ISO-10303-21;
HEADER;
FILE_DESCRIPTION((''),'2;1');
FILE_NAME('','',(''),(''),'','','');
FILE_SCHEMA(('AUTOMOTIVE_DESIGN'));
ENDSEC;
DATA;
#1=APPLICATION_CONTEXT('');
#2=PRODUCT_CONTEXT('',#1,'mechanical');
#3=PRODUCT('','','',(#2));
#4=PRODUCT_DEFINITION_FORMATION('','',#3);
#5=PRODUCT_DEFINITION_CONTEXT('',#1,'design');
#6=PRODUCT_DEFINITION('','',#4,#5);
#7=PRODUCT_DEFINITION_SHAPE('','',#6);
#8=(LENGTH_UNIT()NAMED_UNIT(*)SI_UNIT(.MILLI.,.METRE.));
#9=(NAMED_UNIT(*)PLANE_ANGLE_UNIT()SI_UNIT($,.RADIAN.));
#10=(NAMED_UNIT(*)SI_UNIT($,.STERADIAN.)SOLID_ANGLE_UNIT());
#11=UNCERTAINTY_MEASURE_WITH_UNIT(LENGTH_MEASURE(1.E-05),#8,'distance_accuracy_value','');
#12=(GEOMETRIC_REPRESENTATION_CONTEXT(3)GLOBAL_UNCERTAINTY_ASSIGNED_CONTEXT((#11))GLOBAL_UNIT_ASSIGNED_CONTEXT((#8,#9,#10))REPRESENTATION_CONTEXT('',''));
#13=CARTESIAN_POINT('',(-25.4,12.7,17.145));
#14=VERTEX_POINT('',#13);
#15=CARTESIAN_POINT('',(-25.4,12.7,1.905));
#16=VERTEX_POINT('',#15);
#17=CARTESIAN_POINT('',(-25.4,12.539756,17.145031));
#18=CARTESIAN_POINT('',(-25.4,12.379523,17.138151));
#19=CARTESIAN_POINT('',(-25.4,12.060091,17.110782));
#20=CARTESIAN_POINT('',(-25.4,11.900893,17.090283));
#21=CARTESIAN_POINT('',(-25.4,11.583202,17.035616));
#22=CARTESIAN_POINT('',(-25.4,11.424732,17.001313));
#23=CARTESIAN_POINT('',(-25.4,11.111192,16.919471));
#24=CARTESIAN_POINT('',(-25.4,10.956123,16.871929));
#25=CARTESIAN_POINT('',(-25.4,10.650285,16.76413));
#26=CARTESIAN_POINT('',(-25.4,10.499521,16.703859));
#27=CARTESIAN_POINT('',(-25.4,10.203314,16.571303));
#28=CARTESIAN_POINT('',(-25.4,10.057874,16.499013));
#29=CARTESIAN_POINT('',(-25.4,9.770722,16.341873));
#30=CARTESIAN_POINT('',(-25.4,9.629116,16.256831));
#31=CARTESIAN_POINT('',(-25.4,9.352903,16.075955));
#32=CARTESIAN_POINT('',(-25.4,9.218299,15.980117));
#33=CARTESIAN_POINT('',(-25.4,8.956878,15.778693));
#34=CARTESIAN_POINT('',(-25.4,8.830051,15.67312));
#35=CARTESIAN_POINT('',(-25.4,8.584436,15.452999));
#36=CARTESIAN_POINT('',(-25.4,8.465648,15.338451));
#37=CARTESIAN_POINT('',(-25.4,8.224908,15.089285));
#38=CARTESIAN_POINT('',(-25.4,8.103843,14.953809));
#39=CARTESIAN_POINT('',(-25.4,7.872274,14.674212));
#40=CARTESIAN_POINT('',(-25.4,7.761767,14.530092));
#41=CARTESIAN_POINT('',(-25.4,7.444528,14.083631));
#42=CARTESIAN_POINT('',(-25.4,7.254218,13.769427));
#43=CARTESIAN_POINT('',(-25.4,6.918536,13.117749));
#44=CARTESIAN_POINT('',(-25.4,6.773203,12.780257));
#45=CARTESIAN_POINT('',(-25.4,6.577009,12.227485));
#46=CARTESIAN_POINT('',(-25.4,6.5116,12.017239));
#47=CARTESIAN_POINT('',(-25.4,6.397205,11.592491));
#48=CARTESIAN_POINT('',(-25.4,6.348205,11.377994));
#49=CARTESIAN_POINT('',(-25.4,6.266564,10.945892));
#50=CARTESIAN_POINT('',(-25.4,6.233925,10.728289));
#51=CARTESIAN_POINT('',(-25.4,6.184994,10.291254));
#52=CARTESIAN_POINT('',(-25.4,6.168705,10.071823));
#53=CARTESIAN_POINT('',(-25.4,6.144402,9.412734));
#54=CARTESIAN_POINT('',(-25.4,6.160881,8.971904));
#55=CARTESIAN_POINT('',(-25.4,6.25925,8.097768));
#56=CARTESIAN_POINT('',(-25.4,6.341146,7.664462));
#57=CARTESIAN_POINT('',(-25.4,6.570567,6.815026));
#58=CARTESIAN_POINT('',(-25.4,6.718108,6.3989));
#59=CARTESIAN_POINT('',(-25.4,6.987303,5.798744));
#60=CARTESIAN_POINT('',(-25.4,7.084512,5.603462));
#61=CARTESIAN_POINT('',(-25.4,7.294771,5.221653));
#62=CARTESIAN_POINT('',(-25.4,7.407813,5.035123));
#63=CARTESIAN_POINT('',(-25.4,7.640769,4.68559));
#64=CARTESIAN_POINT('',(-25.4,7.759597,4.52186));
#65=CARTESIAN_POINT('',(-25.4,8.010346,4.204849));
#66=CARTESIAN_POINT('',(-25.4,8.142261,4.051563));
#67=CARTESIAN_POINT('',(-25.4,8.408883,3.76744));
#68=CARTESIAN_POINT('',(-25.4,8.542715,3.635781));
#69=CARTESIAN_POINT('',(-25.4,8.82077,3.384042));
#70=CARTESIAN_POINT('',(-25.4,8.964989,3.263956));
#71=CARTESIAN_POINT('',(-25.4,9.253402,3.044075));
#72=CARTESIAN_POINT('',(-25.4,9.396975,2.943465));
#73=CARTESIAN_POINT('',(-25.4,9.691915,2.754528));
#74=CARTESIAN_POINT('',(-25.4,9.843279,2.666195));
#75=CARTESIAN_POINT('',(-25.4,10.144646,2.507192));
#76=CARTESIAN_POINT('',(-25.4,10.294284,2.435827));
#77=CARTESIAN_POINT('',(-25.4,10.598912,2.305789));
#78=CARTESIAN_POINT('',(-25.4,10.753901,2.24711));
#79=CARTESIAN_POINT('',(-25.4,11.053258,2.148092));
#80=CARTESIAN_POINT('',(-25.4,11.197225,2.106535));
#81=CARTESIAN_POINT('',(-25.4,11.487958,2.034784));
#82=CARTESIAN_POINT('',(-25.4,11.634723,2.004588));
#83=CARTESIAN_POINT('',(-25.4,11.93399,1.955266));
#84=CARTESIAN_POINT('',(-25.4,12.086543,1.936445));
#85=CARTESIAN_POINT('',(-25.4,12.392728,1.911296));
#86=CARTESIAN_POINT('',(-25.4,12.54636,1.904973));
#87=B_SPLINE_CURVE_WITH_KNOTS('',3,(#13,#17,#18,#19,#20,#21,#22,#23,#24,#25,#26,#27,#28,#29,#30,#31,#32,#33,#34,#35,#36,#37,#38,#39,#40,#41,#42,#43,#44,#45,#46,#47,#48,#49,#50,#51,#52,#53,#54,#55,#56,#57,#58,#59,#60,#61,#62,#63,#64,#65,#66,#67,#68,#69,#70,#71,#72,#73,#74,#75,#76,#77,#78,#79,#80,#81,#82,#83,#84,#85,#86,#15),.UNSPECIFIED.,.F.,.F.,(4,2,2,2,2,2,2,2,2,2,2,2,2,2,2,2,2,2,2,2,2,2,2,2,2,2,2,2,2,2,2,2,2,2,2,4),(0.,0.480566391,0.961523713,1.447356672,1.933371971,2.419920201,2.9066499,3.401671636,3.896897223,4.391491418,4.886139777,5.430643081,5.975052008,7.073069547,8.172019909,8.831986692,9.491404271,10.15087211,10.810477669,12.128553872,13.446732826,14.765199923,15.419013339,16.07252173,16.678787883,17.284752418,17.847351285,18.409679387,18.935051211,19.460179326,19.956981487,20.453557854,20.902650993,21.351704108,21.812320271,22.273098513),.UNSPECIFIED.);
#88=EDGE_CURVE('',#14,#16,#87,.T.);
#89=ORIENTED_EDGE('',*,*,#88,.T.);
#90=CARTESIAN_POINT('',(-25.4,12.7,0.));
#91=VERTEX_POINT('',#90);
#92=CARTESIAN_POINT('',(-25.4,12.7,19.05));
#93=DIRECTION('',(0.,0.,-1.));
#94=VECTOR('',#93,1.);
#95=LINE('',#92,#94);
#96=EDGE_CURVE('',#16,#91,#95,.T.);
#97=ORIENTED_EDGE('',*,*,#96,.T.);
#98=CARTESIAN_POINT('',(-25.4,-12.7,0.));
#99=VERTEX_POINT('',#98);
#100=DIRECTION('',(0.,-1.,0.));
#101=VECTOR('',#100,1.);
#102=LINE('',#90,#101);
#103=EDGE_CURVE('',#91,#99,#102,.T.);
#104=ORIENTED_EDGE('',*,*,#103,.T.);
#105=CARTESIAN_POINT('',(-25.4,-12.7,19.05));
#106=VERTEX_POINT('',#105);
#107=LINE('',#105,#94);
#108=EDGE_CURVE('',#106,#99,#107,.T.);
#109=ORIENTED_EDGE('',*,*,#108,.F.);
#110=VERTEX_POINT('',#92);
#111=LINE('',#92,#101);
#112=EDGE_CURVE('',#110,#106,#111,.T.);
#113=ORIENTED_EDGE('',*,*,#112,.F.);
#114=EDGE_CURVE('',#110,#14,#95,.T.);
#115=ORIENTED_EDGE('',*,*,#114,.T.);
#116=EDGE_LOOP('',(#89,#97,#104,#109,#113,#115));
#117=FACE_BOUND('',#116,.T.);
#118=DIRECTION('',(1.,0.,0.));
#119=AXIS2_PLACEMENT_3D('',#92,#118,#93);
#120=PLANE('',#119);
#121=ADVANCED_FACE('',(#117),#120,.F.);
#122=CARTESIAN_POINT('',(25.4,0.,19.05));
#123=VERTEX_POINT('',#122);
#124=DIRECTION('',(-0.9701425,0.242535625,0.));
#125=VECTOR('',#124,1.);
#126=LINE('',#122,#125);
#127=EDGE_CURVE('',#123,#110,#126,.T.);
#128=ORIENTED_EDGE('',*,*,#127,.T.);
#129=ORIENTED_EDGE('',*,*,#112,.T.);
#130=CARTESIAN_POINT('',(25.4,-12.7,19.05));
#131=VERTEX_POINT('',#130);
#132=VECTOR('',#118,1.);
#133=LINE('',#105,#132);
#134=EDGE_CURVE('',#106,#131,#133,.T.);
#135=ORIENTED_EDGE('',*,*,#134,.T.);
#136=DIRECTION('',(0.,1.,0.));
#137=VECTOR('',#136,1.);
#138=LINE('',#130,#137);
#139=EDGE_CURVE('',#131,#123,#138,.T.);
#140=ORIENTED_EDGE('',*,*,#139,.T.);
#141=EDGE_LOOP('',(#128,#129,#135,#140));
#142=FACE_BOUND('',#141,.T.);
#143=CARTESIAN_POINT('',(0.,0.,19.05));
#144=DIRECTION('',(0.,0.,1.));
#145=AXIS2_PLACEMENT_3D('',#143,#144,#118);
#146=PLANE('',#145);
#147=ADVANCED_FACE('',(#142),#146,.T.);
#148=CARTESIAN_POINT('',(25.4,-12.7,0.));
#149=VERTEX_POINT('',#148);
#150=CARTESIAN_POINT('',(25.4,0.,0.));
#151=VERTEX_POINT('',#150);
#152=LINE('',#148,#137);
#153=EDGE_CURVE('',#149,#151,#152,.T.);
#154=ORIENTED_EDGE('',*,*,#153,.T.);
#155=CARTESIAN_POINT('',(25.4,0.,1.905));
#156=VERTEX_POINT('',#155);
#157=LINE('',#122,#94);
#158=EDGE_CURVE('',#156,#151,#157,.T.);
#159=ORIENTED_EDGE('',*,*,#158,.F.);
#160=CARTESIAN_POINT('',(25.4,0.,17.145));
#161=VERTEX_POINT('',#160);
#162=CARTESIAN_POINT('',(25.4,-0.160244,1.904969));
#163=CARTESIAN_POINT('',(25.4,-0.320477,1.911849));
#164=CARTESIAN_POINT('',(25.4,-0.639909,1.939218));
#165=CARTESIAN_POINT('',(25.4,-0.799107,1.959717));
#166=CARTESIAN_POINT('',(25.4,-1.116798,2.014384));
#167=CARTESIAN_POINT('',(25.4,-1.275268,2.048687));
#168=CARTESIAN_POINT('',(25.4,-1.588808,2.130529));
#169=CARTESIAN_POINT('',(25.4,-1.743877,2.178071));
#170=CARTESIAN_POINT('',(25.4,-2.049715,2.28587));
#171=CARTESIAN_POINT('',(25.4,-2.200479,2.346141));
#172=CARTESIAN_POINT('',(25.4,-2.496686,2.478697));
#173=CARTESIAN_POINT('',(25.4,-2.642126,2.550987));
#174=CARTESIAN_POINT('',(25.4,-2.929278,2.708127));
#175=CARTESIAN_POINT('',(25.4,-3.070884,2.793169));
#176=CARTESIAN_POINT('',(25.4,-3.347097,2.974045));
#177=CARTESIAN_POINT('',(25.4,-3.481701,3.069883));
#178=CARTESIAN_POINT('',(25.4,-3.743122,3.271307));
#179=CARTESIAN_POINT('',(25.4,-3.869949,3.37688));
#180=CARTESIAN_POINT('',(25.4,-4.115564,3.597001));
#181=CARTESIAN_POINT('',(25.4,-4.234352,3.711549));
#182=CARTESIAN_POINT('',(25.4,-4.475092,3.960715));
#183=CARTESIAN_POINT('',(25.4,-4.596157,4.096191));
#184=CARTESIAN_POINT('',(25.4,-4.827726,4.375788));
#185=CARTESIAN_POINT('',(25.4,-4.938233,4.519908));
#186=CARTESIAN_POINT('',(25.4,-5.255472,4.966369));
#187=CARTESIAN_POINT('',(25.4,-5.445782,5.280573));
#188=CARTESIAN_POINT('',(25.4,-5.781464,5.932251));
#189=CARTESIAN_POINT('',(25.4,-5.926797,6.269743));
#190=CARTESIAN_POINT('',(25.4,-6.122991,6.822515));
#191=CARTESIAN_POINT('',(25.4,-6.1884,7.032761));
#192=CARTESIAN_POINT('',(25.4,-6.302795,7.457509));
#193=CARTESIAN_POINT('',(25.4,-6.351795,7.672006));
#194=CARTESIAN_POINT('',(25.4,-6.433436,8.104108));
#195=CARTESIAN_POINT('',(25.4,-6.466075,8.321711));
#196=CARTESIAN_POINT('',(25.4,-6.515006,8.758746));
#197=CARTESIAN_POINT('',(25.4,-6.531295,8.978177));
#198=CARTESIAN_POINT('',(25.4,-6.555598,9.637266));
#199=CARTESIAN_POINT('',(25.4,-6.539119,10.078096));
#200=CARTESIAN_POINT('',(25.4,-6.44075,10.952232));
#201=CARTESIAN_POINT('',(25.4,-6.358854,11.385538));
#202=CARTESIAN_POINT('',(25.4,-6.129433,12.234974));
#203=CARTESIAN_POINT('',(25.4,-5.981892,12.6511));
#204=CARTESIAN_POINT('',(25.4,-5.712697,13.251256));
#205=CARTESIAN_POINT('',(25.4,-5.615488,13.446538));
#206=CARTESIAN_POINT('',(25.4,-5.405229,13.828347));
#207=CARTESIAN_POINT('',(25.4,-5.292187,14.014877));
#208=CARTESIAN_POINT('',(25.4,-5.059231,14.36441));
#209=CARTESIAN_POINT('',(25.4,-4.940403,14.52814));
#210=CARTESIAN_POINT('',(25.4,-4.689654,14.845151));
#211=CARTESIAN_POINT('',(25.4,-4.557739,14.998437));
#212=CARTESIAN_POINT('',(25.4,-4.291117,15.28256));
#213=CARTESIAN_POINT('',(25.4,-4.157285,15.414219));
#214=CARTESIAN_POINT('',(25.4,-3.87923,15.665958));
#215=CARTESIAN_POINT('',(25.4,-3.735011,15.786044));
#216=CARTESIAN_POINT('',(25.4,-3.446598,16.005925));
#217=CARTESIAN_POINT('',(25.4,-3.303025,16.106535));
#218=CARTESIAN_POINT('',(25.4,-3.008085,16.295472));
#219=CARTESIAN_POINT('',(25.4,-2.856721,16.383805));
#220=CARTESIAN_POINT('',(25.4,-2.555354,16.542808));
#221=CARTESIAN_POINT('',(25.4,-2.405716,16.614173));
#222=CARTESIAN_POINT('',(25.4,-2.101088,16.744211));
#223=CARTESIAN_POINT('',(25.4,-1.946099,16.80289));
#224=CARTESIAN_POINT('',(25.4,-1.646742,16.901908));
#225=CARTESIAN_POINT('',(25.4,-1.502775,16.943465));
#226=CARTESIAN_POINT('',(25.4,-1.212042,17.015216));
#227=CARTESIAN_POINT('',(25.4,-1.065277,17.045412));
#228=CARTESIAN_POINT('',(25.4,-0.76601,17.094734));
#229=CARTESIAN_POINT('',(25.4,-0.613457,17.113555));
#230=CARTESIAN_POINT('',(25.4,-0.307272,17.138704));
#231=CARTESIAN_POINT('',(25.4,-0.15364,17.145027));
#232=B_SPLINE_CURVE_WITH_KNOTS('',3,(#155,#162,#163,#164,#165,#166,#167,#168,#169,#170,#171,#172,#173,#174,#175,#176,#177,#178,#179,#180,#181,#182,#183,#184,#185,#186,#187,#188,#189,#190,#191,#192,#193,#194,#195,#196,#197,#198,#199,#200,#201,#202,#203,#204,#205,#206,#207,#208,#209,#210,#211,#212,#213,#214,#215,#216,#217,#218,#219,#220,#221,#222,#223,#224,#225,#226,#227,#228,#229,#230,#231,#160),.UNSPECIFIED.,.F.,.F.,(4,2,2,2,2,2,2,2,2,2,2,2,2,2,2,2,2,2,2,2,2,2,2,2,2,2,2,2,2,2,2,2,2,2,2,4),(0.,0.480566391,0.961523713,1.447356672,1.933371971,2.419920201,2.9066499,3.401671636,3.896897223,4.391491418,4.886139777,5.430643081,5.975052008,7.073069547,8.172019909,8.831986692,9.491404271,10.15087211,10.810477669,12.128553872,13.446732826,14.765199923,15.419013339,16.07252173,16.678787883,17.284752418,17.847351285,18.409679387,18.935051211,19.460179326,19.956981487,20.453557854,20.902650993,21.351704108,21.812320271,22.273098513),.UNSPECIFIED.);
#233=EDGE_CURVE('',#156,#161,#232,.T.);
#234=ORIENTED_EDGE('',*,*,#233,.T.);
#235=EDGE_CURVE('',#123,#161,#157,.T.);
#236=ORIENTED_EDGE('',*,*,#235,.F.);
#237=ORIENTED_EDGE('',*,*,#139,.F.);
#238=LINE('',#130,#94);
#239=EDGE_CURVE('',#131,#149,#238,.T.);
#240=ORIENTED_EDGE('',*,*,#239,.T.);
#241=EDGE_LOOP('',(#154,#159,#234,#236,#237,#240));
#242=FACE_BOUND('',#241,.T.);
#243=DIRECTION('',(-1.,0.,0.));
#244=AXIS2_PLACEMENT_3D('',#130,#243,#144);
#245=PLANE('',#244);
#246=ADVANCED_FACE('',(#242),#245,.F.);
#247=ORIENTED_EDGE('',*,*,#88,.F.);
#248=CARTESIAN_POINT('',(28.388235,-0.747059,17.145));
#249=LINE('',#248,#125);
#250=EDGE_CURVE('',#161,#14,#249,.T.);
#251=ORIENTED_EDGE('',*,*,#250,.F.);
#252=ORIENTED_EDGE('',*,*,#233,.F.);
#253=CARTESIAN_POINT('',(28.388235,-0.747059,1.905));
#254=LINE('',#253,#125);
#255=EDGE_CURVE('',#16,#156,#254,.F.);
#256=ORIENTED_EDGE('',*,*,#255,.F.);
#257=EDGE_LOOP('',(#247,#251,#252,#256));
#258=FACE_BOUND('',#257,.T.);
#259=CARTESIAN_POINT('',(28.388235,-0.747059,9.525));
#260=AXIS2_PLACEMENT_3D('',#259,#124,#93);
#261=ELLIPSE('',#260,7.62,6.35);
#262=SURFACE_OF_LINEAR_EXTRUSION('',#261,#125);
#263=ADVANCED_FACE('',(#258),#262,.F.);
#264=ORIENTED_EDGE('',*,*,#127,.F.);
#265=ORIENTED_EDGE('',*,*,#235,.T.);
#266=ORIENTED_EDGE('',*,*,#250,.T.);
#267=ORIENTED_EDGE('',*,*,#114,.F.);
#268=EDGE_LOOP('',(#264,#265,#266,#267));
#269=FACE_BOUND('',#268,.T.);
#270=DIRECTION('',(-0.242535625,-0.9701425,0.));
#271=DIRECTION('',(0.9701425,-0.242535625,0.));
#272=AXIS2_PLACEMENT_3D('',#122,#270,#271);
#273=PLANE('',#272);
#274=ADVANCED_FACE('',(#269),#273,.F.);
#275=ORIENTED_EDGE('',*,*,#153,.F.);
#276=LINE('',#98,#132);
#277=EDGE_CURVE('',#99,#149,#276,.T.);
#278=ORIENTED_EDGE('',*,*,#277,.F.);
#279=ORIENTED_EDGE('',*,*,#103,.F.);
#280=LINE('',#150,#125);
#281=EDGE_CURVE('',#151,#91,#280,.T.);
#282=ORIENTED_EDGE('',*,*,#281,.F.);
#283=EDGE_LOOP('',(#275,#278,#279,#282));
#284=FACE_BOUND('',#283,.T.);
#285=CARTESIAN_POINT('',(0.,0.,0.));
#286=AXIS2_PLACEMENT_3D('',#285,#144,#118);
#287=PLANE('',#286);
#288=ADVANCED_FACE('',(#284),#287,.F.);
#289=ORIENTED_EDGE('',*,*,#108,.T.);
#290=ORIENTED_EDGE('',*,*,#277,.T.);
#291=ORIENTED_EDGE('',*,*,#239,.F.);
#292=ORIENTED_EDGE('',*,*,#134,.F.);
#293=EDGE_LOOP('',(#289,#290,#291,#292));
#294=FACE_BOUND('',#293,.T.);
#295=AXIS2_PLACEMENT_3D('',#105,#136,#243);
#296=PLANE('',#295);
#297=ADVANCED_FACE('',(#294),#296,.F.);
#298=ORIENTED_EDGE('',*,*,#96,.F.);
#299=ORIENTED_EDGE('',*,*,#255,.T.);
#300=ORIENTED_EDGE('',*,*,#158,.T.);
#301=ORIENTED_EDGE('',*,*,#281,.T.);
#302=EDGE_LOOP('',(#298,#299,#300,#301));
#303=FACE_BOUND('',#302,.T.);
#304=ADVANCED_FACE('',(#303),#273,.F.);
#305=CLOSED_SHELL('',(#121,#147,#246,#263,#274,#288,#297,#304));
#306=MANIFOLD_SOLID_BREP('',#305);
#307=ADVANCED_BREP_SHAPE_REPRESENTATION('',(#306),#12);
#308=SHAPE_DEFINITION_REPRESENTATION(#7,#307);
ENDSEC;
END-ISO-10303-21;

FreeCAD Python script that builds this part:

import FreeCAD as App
import Part
import Sketcher

V = App.Vector
Q = App.Units.Quantity

doc = App.newDocument("Part")
body = doc.addObject("PartDesign::Body", "Body")

# Sketch on XY plane
sketch1 = body.newObject("Sketcher::SketchObject", "Sketch")
sketch1.AttachmentSupport = (doc.getObject("XY_Plane"), [""])
sketch1.MapMode = "FlatFace"
sketch1.addGeometry([
    Part.LineSegment(V(-25, 13, 0), V(-25, -13, 0)),
    Part.LineSegment(V(-25, -13, 0), V(25, -13, 0)),
    Part.LineSegment(V(25, -13, 0), V(25, 0, 0)),
    Part.LineSegment(V(25, 0, 0), V(-25, 13, 0)),
], False)
sketch1.addConstraint([
    Sketcher.Constraint("Coincident", 0, 2, 1, 1),
    Sketcher.Constraint("Coincident", 1, 2, 2, 1),
    Sketcher.Constraint("Coincident", 2, 2, 3, 1),
    Sketcher.Constraint("Coincident", 3, 2, 0, 1),
    Sketcher.Constraint("Vertical", 0),
    Sketcher.Constraint("Horizontal", 1),
    Sketcher.Constraint("Vertical", 2),
    Sketcher.Constraint("Symmetric", 1, 2, 3, 2, -1, 1),
    Sketcher.Constraint("PointOnObject", 2, 2, -1),
    Sketcher.Constraint("DistanceX", 1, 1, 1, 2, Q("2 in")),
    Sketcher.Constraint("DistanceY", 0, 2, 0, 1, Q("1 in")),
])
pad1 = body.newObject("PartDesign::Pad", "Pad")
pad1.Profile = sketch1
pad1.Length = Q("0.75 in")

# Sketch on an angled plane
sketch2 = body.newObject("Sketcher::SketchObject", "Sketch001")
sketch2.Placement = App.Placement(V(-26.894118, 6.723529, 0), App.Rotation(V(0, 0, -1), V(-0.242535625, -0.9701425, 0), V(-0.9701425, 0.242535625, 0), "ZXY"))
sketch2.addGeometry(Part.Ellipse(V(-1.905, -6.160405, 0), V(-9.525, 0.189595, 0), V(-9.525, -6.160405, 0)), False)
sketch2.addConstraint(Sketcher.Constraint("Block", 0))
pocket1 = body.newObject("PartDesign::Pocket", "Pocket")
pocket1.Profile = sketch2
pocket1.Type = "ThroughAll"

doc.recompute()
